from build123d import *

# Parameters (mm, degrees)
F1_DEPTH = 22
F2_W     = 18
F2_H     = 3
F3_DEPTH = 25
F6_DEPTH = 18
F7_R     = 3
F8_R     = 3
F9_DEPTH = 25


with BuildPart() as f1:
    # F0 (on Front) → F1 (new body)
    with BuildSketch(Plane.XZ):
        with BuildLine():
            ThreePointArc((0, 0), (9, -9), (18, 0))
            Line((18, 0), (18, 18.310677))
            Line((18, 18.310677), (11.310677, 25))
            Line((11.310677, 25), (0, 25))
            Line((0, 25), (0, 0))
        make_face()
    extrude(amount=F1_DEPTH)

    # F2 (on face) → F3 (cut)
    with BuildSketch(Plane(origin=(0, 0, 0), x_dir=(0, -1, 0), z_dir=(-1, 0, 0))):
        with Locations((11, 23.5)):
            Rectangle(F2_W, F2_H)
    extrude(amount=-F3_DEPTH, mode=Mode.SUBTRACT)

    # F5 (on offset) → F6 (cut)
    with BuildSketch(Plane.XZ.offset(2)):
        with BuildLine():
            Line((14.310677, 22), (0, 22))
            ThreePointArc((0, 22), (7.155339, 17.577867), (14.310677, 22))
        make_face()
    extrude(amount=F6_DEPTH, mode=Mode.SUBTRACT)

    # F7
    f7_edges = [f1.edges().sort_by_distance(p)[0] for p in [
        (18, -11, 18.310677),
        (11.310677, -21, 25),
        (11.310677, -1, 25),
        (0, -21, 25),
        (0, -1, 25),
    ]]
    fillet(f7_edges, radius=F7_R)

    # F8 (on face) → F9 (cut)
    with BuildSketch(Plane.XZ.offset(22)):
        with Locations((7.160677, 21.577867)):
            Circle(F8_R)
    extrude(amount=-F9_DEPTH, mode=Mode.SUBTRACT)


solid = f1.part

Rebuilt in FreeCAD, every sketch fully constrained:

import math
import FreeCAD as App
import Part
import Sketcher
Q = App.Units.Quantity


def edges_at(feature, points):
    """Names of the edges that pass closest to the given points."""
    edges = feature.Shape.Edges
    near = lambda p: min(range(len(edges)), key=lambda i: edges[i].distToShape(Part.Vertex(*p))[0])
    return sorted({f"Edge{near(p) + 1}" for p in points})

doc = App.newDocument("Part")
params = doc.addObject("Spreadsheet::Sheet", "Params")
for row, (alias, value) in enumerate([
    ("sketch1_radius", "9 mm"),
    ("sketch1_height", "25 mm"),
    ("pad1_length", "22 mm"),
    ("sketch2_width", "18 mm"),
    ("sketch2_height", "3 mm"),
    ("pocket1_length", "25 mm"),
    ("sketch3_radius", "8 mm"),
    ("pocket2_length", "18 mm"),
    ("fillet_radius", "3 mm"),
    ("sketch4_diameter", "6 mm"),
    ("pocket3_length", "25 mm"),
], start=1):
    params.set(f"A{row}", alias)
    params.set(f"B{row}", "=" + value)
    params.setAlias(f"B{row}", alias)

body = doc.addObject("PartDesign::Body", "Body")

sketch1 = doc.addObject("Sketcher::SketchObject", "Sketch")
body.addObject(sketch1)
sketch1.AttachmentSupport = (doc.XZ_Plane, [""])
sketch1.MapMode = "FlatFace"
sketch1.addGeometry([
    Part.ArcOfCircle(Part.Circle(App.Vector(9, 0, 0), App.Vector(0, 0, 1), 9), math.radians(180), math.radians(360)),
    Part.LineSegment(App.Vector(18, 0, 0), App.Vector(18, 18, 0)),
    Part.LineSegment(App.Vector(18, 18, 0), App.Vector(11, 25, 0)),
    Part.LineSegment(App.Vector(11, 25, 0), App.Vector(0, 25, 0)),
    Part.LineSegment(App.Vector(0, 25, 0), App.Vector(0, 0, 0)),
], False)
sketch1.addConstraint([
    Sketcher.Constraint("Tangent", 0, 2, 1, 1),
    Sketcher.Constraint("Coincident", 1, 2, 2, 1),
    Sketcher.Constraint("Coincident", 2, 2, 3, 1),
    Sketcher.Constraint("Coincident", 3, 2, 4, 1),
    Sketcher.Constraint("Tangent", 4, 2, 0, 1),
    Sketcher.Constraint("Vertical", 1),
    Sketcher.Constraint("Horizontal", 3),
    Sketcher.Constraint("Vertical", 4),
    Sketcher.Constraint("Coincident", 4, 2, -1, 1),
    Sketcher.Constraint("Radius", 0, Q("9 mm")),
    Sketcher.Constraint("DistanceY", 4, 2, 4, 1, Q("25 mm")),
    Sketcher.Constraint("Angle", 2, Q("135 deg")),
    Sketcher.Constraint("Distance", 2, Q("9.460131 mm")),
])
sketch1.setExpression("Constraints[9]", "Params.sketch1_radius")
sketch1.setExpression("Constraints[10]", "Params.sketch1_height")
pad1 = doc.addObject("PartDesign::Pad", "Pad")
body.addObject(pad1)
pad1.Profile = sketch1
pad1.setExpression("Length", "Params.pad1_length")

sketch2 = doc.addObject("Sketcher::SketchObject", "Sketch001")
body.addObject(sketch2)
sketch2.AttachmentSupport = (doc.YZ_Plane, [""])
sketch2.MapMode = "FlatFace"
sketch2.addGeometry([
    Part.LineSegment(App.Vector(-2, 25, 0), App.Vector(-2, 22, 0)),
    Part.LineSegment(App.Vector(-2, 22, 0), App.Vector(-20, 22, 0)),
    Part.LineSegment(App.Vector(-20, 22, 0), App.Vector(-20, 25, 0)),
    Part.LineSegment(App.Vector(-20, 25, 0), App.Vector(-2, 25, 0)),
], False)
sketch2.addConstraint([
    Sketcher.Constraint("Coincident", 0, 2, 1, 1),
    Sketcher.Constraint("Coincident", 1, 2, 2, 1),
    Sketcher.Constraint("Coincident", 2, 2, 3, 1),
    Sketcher.Constraint("Coincident", 3, 2, 0, 1),
    Sketcher.Constraint("Vertical", 0),
    Sketcher.Constraint("Horizontal", 1),
    Sketcher.Constraint("Vertical", 2),
    Sketcher.Constraint("Horizontal", 3),
    Sketcher.Constraint("DistanceX", 1, 2, 1, 1, Q("18 mm")),
    Sketcher.Constraint("DistanceY", 0, 2, 0, 1, Q("3 mm")),
    Sketcher.Constraint("DistanceX", 0, 2, -1, 1, Q("2 mm")),
    Sketcher.Constraint("DistanceY", -1, 1, 0, 2, Q("22 mm")),
])
sketch2.setExpression("Constraints[8]", "Params.sketch2_width")
sketch2.setExpression("Constraints[9]", "Params.sketch2_height")
pocket1 = doc.addObject("PartDesign::Pocket", "Pocket")
body.addObject(pocket1)
pocket1.Profile = sketch2
pocket1.setExpression("Length", "Params.pocket1_length")
pocket1.Reversed = True

sketch3 = doc.addObject("Sketcher::SketchObject", "Sketch002")
body.addObject(sketch3)
sketch3.AttachmentSupport = (doc.XZ_Plane, [""])
sketch3.MapMode = "FlatFace"
sketch3.AttachmentOffset = App.Placement(App.Vector(0, 0, 2), App.Rotation())
sketch3.addGeometry([
    Part.LineSegment(App.Vector(14, 22, 0), App.Vector(0, 22, 0)),
    Part.ArcOfCircle(Part.Circle(App.Vector(7, 26, 0), App.Vector(0, 0, 1), 8), math.radians(-153), math.radians(-27)),
], False)
sketch3.addConstraint([
    Sketcher.Constraint("Coincident", 0, 1, 1, 2),
    Sketcher.Constraint("Coincident", 1, 1, 0, 2),
    Sketcher.Constraint("Horizontal", 0),
    Sketcher.Constraint("PointOnObject", 1, 1, -2),
    Sketcher.Constraint("Radius", 1, Q("8 mm")),
    Sketcher.Constraint("DistanceY", -1, 1, 0, 1, Q("22 mm")),
    Sketcher.Constraint("DistanceX", 0, 2, 0, 1, Q("14.310677 mm")),
])
sketch3.setExpression("Constraints[4]", "Params.sketch3_radius")
pocket2 = doc.addObject("PartDesign::Pocket", "Pocket001")
body.addObject(pocket2)
pocket2.Profile = sketch3
pocket2.setExpression("Length", "Params.pocket2_length")
pocket2.Reversed = True
doc.recompute()

fillet = doc.addObject("PartDesign::Fillet", "Fillet")
body.addObject(fillet)
fillet.Base = (pocket2, edges_at(pocket2, [
    (18, -11, 18.311),
    (11.311, -21, 25),
    (11.311, -1, 25),
    (0, -21, 25),
    (0, -1, 25),
]))
fillet.setExpression("Radius", "Params.fillet_radius")

sketch4 = doc.addObject("Sketcher::SketchObject", "Sketch003")
body.addObject(sketch4)
sketch4.AttachmentSupport = (doc.XZ_Plane, [""])
sketch4.MapMode = "FlatFace"
sketch4.AttachmentOffset = App.Placement(App.Vector(0, 0, 22), App.Rotation())
sketch4.addGeometry(Part.Circle(App.Vector(7.2, 21.6, 0), App.Vector(0, 0, 1), 3), False)
sketch4.addConstraint([
    Sketcher.Constraint("Diameter", 0, Q("6 mm")),
    Sketcher.Constraint("DistanceX", -1, 1, 0, 3, Q("7.160677 mm")),
    Sketcher.Constraint("DistanceY", -1, 1, 0, 3, Q("21.577867 mm")),
])
sketch4.setExpression("Constraints[0]", "Params.sketch4_diameter")
pocket3 = doc.addObject("PartDesign::Pocket", "Pocket002")
body.addObject(pocket3)
pocket3.Profile = sketch4
pocket3.setExpression("Length", "Params.pocket3_length")

doc.recompute()
